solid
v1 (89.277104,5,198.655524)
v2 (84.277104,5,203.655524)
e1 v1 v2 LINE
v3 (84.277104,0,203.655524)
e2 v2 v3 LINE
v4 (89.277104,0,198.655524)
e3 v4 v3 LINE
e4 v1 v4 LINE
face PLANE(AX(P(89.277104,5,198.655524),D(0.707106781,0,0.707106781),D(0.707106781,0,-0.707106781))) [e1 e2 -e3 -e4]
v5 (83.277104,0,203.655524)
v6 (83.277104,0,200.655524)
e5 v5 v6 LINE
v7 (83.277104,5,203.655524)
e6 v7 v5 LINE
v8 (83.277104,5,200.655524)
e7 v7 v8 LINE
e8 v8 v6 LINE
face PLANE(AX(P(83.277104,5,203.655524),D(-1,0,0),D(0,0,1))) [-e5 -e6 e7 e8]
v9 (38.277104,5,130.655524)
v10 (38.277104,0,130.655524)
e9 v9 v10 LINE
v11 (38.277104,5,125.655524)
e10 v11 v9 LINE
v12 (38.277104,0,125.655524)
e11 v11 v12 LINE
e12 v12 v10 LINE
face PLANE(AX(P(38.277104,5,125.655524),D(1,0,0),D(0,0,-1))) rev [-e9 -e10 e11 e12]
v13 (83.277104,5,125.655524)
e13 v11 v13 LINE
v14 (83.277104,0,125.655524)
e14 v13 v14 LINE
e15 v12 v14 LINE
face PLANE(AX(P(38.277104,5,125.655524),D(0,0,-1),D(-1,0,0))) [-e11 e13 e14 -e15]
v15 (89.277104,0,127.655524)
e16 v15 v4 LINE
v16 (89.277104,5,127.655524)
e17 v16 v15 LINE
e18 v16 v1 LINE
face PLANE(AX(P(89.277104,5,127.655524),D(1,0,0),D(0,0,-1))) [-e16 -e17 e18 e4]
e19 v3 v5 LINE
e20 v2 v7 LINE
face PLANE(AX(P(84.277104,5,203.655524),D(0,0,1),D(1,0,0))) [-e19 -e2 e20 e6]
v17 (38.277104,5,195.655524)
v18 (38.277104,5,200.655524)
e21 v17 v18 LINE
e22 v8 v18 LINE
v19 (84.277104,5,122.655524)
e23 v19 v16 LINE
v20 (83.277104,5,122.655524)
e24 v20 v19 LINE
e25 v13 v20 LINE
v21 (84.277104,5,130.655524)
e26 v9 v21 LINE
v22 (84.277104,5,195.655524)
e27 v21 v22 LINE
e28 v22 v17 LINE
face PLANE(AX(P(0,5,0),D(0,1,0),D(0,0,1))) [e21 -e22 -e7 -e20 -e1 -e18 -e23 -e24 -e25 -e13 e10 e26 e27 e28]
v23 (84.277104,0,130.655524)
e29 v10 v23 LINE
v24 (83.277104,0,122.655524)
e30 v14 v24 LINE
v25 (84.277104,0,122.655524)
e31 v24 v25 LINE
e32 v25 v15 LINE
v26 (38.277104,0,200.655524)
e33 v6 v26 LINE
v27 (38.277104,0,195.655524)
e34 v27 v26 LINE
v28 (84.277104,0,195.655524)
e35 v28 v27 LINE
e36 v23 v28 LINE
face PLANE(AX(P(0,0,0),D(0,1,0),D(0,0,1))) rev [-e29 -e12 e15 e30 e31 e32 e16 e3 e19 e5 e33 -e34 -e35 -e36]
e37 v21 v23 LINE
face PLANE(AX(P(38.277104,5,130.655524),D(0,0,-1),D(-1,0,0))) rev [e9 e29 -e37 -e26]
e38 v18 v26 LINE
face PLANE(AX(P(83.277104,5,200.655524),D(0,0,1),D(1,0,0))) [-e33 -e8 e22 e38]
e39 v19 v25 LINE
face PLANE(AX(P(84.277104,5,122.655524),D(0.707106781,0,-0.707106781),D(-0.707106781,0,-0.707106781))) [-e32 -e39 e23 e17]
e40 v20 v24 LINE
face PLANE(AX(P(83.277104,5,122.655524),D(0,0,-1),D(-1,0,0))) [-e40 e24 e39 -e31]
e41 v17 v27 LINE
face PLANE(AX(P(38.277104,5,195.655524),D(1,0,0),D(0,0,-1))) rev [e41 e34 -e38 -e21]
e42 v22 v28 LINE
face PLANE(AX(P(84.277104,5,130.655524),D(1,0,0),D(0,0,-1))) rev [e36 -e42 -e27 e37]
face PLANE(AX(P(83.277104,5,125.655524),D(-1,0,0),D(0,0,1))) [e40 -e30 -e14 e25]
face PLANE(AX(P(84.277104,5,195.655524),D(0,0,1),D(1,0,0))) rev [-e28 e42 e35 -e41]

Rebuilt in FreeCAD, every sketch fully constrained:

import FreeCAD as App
import Part
import Sketcher


def add_polygon(sketch, points):
    """Adds a closed chain of lines whose ends are joined by coincident constraints."""
    first, n = sketch.GeometryCount, len(points)
    for a, b in zip(points, points[1:] + points[:1]):
        sketch.addGeometry(Part.LineSegment(App.Vector(*a, 0), App.Vector(*b, 0)), False)
    for i in range(n):
        sketch.addConstraint(Sketcher.Constraint("Coincident", first + i, 2, first + (i + 1) % n, 1))

doc = App.newDocument("Part")
params = doc.addObject("Spreadsheet::Sheet", "Params")
for row, (alias, value) in enumerate([
    ("sketch1_width", "45 mm"),
    ("sketch1_width2", "46 mm"),
    ("sketch1_height", "5 mm"),
    ("sketch1_height2", "65 mm"),
    ("sketch1_height3", "3 mm"),
    ("pad1_length", "5 mm"),
], start=1):
    params.set(f"A{row}", alias)
    params.set(f"B{row}", "=" + value)
    params.setAlias(f"B{row}", alias)

body = doc.addObject("PartDesign::Body", "Body")

# Sketch on XZ plane
sketch1 = body.newObject("Sketcher::SketchObject", "Sketch")
sketch1.AttachmentSupport = (doc.getObject("XZ_Plane"), [""])
sketch1.MapMode = "FlatFace"
add_polygon(sketch1, [(83.3, 125.7), (38.3, 125.7), (38.3, 130.7), (84.3, 130.7), (84.3, 195.7), (38.3, 195.7), (38.3, 200.7), (83.3, 200.7), (83.3, 203.7), (84.3, 203.7), (89.3, 198.7), (89.3, 127.7), (84.3, 122.7), (83.3, 122.7)])  # lines 0-13
sketch1.addConstraint([
    Sketcher.Constraint("Horizontal", 0),
    Sketcher.Constraint("Vertical", 1),
    Sketcher.Constraint("Horizontal", 2),
    Sketcher.Constraint("Vertical", 3),
    Sketcher.Constraint("Horizontal", 4),
    Sketcher.Constraint("Vertical", 5),
    Sketcher.Constraint("Horizontal", 6),
    Sketcher.Constraint("Vertical", 7),
    Sketcher.Constraint("Horizontal", 8),
    Sketcher.Constraint("Vertical", 10),
    Sketcher.Constraint("Horizontal", 12),
    Sketcher.Constraint("Vertical", 13),
    Sketcher.Constraint("Perpendicular", 9, 11),
    Sketcher.Constraint("Vertical", 1, 2, 4, 2),
    Sketcher.Constraint("Vertical", 3, 2, 8, 2),
    Sketcher.Constraint("Vertical", 8, 2, 11, 2),
    Sketcher.Constraint("Vertical", 7, 2, 12, 2),
    Sketcher.Constraint("Equal", 1, 5),
    Sketcher.Constraint("Equal", 7, 13),
    Sketcher.Constraint("Equal", 9, 11),
    Sketcher.Constraint("DistanceX", 0, 2, 0, 1, 45.0),
    Sketcher.Constraint("DistanceX", 2, 1, 2, 2, 46.0),
    Sketcher.Constraint("DistanceY", 1, 1, 1, 2, 5.0),
    Sketcher.Constraint("DistanceY", 3, 1, 3, 2, 65.0),
    Sketcher.Constraint("DistanceY", 7, 1, 7, 2, 3.0),
    Sketcher.Constraint("DistanceY", 10, 2, 10, 1, 71.0),
    Sketcher.Constraint("DistanceX", -1, 1, 0, 2, 38.277104),
    Sketcher.Constraint("DistanceY", -1, 1, 0, 2, 125.655524),
])
sketch1.setExpression("Constraints[34]", "Params.sketch1_width")
sketch1.setExpression("Constraints[35]", "Params.sketch1_width2")
sketch1.setExpression("Constraints[36]", "Params.sketch1_height")
sketch1.setExpression("Constraints[37]", "Params.sketch1_height2")
sketch1.setExpression("Constraints[38]", "Params.sketch1_height3")
pad1 = body.newObject("PartDesign::Pad", "Pad")
pad1.Profile = sketch1
pad1.setExpression("Length", "Params.pad1_length")
pad1.Reversed = True

doc.recompute()
